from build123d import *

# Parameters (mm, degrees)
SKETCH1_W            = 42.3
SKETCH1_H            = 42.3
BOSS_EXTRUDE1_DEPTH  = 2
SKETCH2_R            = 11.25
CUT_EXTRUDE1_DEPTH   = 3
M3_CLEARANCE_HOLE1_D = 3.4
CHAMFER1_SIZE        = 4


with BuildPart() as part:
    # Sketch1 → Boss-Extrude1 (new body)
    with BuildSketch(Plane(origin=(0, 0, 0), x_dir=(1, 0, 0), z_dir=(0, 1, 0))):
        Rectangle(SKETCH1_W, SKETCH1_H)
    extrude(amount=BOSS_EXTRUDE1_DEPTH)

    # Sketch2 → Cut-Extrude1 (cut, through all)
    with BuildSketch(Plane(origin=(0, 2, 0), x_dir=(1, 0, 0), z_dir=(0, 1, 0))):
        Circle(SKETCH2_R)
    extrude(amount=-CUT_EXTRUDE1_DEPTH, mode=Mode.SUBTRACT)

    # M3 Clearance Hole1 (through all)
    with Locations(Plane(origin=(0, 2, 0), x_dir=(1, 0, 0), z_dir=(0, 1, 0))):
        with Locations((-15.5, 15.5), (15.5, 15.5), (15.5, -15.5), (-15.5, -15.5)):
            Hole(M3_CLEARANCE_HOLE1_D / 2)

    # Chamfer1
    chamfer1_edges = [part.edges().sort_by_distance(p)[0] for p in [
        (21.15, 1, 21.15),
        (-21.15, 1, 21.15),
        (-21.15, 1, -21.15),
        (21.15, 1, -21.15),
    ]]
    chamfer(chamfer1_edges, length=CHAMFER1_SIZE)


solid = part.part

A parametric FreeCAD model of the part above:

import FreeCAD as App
import Part
import Sketcher
from FreeCAD import Vector
Q = App.Units.Quantity


def edges_at(feature, points):
    """Names of the edges that pass closest to the given points."""
    edges = feature.Shape.Edges
    near = lambda p: min(range(len(edges)), key=lambda i: edges[i].distToShape(Part.Vertex(*p))[0])
    return sorted({f"Edge{near(p) + 1}" for p in points})


def add_polygon(sketch, points):
    """Adds a closed chain of lines whose ends are joined by coincident constraints."""
    first, n = sketch.GeometryCount, len(points)
    for a, b in zip(points, points[1:] + points[:1]):
        sketch.addGeometry(Part.LineSegment(App.Vector(*a, 0), App.Vector(*b, 0)), False)
    for i in range(n):
        sketch.addConstraint(Sketcher.Constraint("Coincident", first + i, 2, first + (i + 1) % n, 1))

doc = App.newDocument("Part")
params = doc.addObject("Spreadsheet::Sheet", "Params")
for row, (alias, value) in enumerate([
    ("sketch1_width", "42.3 mm"),
    ("pad1_length", "2 mm"),
    ("sketch2_diameter", "22.5 mm"),
    ("sketch3_diameter", "3.4 mm"),
    ("hole_diameter", "3.4 mm"),
    ("chamfer_size", "4 mm"),
], start=1):
    params.set(f"A{row}", alias)
    params.set(f"B{row}", "=" + value)
    params.setAlias(f"B{row}", alias)

body = doc.addObject("PartDesign::Body", "Body")

# Sketch on XZ plane
sketch1 = doc.addObject("Sketcher::SketchObject", "Sketch")
body.addObject(sketch1)
sketch1.AttachmentSupport = (doc.XZ_Plane, [""])
sketch1.MapMode = "FlatFace"
add_polygon(sketch1, [(-21, -21), (-21, 21), (21, 21), (21, -21)])  # lines 0-3
sketch1.addConstraint([
    Sketcher.Constraint("Vertical", 0),
    Sketcher.Constraint("Horizontal", 1),
    Sketcher.Constraint("Vertical", 2),
    Sketcher.Constraint("Horizontal", 3),
    Sketcher.Constraint("Symmetric", 0, 2, 2, 2, -1, 1),
    Sketcher.Constraint("Equal", 3, 0),
    Sketcher.Constraint("DistanceX", 1, 1, 1, 2, Q("42.3 mm")),
])
sketch1.setExpression("Constraints[10]", "Params.sketch1_width")
pad1 = doc.addObject("PartDesign::Pad", "Pad")
body.addObject(pad1)
pad1.Profile = sketch1
pad1.setExpression("Length", "Params.pad1_length")
pad1.Reversed = True

# Sketch on XZ plane
sketch2 = doc.addObject("Sketcher::SketchObject", "Sketch001")
body.addObject(sketch2)
sketch2.AttachmentSupport = (doc.XZ_Plane, [""])
sketch2.MapMode = "FlatFace"
sketch2.AttachmentOffset = App.Placement(Vector(0, 0, -2), App.Rotation())
sketch2.addGeometry(Part.Circle(Vector(0, 0, 0), Vector(0, 0, 1), 11), False)
sketch2.addConstraint([
    Sketcher.Constraint("Coincident", 0, 3, -1, 1),
    Sketcher.Constraint("Diameter", 0, Q("22.5 mm")),
])
sketch2.setExpression("Constraints[1]", "Params.sketch2_diameter")
pocket1 = doc.addObject("PartDesign::Pocket", "Pocket")
body.addObject(pocket1)
pocket1.Profile = sketch2
pocket1.Type = "ThroughAll"
pocket1.Reversed = True

# Sketch on XZ plane
sketch3 = doc.addObject("Sketcher::SketchObject", "Sketch002")
body.addObject(sketch3)
sketch3.AttachmentSupport = (doc.XZ_Plane, [""])
sketch3.MapMode = "FlatFace"
sketch3.AttachmentOffset = App.Placement(Vector(0, 0, -2), App.Rotation())
sketch3.addGeometry([
    Part.Circle(Vector(-15.5, -15.5, 0), Vector(0, 0, 1), 1.7),
    Part.Circle(Vector(15.5, -15.5, 0), Vector(0, 0, 1), 1.7),
    Part.Circle(Vector(15.5, 15.5, 0), Vector(0, 0, 1), 1.7),
    Part.Circle(Vector(-15.5, 15.5, 0), Vector(0, 0, 1), 1.7),
], False)
sketch3.addConstraint([
    Sketcher.Constraint("Equal", 0, 1),
    Sketcher.Constraint("Equal", 1, 2),
    Sketcher.Constraint("Equal", 2, 3),
    Sketcher.Constraint("Symmetric", 0, 3, 2, 3, -1, 1),
    Sketcher.Constraint("Symmetric", 1, 3, 3, 3, -1, 1),
    Sketcher.Constraint("Symmetric", 0, 3, 1, 3, -2),
    Sketcher.Constraint("Diameter", 0, Q("3.4 mm")),
    Sketcher.Constraint("DistanceX", 0, 3, 1, 3, Q("31 mm")),
    Sketcher.Constraint("DistanceY", 1, 3, 2, 3, Q("31 mm")),
])
sketch3.setExpression("Constraints[6]", "Params.sketch3_diameter")
doc.recompute()
hole = doc.addObject("PartDesign::Hole", "Hole")
body.addObject(hole)
hole.Profile = sketch3
hole.ThreadType = "None"
hole.setExpression("Diameter", "Params.hole_diameter")
hole.DepthType = "ThroughAll"
hole.Reversed = True
doc.recompute()

chamfer = doc.addObject("PartDesign::Chamfer", "Chamfer")
body.addObject(chamfer)
chamfer.Base = (hole, edges_at(hole, [
    (21.15, 1, 21.15),
    (-21.15, 1, 21.15),
    (-21.15, 1, -21.15),
    (21.15, 1, -21.15),
]))
chamfer.setExpression("Size", "Params.chamfer_size")

doc.recompute()
